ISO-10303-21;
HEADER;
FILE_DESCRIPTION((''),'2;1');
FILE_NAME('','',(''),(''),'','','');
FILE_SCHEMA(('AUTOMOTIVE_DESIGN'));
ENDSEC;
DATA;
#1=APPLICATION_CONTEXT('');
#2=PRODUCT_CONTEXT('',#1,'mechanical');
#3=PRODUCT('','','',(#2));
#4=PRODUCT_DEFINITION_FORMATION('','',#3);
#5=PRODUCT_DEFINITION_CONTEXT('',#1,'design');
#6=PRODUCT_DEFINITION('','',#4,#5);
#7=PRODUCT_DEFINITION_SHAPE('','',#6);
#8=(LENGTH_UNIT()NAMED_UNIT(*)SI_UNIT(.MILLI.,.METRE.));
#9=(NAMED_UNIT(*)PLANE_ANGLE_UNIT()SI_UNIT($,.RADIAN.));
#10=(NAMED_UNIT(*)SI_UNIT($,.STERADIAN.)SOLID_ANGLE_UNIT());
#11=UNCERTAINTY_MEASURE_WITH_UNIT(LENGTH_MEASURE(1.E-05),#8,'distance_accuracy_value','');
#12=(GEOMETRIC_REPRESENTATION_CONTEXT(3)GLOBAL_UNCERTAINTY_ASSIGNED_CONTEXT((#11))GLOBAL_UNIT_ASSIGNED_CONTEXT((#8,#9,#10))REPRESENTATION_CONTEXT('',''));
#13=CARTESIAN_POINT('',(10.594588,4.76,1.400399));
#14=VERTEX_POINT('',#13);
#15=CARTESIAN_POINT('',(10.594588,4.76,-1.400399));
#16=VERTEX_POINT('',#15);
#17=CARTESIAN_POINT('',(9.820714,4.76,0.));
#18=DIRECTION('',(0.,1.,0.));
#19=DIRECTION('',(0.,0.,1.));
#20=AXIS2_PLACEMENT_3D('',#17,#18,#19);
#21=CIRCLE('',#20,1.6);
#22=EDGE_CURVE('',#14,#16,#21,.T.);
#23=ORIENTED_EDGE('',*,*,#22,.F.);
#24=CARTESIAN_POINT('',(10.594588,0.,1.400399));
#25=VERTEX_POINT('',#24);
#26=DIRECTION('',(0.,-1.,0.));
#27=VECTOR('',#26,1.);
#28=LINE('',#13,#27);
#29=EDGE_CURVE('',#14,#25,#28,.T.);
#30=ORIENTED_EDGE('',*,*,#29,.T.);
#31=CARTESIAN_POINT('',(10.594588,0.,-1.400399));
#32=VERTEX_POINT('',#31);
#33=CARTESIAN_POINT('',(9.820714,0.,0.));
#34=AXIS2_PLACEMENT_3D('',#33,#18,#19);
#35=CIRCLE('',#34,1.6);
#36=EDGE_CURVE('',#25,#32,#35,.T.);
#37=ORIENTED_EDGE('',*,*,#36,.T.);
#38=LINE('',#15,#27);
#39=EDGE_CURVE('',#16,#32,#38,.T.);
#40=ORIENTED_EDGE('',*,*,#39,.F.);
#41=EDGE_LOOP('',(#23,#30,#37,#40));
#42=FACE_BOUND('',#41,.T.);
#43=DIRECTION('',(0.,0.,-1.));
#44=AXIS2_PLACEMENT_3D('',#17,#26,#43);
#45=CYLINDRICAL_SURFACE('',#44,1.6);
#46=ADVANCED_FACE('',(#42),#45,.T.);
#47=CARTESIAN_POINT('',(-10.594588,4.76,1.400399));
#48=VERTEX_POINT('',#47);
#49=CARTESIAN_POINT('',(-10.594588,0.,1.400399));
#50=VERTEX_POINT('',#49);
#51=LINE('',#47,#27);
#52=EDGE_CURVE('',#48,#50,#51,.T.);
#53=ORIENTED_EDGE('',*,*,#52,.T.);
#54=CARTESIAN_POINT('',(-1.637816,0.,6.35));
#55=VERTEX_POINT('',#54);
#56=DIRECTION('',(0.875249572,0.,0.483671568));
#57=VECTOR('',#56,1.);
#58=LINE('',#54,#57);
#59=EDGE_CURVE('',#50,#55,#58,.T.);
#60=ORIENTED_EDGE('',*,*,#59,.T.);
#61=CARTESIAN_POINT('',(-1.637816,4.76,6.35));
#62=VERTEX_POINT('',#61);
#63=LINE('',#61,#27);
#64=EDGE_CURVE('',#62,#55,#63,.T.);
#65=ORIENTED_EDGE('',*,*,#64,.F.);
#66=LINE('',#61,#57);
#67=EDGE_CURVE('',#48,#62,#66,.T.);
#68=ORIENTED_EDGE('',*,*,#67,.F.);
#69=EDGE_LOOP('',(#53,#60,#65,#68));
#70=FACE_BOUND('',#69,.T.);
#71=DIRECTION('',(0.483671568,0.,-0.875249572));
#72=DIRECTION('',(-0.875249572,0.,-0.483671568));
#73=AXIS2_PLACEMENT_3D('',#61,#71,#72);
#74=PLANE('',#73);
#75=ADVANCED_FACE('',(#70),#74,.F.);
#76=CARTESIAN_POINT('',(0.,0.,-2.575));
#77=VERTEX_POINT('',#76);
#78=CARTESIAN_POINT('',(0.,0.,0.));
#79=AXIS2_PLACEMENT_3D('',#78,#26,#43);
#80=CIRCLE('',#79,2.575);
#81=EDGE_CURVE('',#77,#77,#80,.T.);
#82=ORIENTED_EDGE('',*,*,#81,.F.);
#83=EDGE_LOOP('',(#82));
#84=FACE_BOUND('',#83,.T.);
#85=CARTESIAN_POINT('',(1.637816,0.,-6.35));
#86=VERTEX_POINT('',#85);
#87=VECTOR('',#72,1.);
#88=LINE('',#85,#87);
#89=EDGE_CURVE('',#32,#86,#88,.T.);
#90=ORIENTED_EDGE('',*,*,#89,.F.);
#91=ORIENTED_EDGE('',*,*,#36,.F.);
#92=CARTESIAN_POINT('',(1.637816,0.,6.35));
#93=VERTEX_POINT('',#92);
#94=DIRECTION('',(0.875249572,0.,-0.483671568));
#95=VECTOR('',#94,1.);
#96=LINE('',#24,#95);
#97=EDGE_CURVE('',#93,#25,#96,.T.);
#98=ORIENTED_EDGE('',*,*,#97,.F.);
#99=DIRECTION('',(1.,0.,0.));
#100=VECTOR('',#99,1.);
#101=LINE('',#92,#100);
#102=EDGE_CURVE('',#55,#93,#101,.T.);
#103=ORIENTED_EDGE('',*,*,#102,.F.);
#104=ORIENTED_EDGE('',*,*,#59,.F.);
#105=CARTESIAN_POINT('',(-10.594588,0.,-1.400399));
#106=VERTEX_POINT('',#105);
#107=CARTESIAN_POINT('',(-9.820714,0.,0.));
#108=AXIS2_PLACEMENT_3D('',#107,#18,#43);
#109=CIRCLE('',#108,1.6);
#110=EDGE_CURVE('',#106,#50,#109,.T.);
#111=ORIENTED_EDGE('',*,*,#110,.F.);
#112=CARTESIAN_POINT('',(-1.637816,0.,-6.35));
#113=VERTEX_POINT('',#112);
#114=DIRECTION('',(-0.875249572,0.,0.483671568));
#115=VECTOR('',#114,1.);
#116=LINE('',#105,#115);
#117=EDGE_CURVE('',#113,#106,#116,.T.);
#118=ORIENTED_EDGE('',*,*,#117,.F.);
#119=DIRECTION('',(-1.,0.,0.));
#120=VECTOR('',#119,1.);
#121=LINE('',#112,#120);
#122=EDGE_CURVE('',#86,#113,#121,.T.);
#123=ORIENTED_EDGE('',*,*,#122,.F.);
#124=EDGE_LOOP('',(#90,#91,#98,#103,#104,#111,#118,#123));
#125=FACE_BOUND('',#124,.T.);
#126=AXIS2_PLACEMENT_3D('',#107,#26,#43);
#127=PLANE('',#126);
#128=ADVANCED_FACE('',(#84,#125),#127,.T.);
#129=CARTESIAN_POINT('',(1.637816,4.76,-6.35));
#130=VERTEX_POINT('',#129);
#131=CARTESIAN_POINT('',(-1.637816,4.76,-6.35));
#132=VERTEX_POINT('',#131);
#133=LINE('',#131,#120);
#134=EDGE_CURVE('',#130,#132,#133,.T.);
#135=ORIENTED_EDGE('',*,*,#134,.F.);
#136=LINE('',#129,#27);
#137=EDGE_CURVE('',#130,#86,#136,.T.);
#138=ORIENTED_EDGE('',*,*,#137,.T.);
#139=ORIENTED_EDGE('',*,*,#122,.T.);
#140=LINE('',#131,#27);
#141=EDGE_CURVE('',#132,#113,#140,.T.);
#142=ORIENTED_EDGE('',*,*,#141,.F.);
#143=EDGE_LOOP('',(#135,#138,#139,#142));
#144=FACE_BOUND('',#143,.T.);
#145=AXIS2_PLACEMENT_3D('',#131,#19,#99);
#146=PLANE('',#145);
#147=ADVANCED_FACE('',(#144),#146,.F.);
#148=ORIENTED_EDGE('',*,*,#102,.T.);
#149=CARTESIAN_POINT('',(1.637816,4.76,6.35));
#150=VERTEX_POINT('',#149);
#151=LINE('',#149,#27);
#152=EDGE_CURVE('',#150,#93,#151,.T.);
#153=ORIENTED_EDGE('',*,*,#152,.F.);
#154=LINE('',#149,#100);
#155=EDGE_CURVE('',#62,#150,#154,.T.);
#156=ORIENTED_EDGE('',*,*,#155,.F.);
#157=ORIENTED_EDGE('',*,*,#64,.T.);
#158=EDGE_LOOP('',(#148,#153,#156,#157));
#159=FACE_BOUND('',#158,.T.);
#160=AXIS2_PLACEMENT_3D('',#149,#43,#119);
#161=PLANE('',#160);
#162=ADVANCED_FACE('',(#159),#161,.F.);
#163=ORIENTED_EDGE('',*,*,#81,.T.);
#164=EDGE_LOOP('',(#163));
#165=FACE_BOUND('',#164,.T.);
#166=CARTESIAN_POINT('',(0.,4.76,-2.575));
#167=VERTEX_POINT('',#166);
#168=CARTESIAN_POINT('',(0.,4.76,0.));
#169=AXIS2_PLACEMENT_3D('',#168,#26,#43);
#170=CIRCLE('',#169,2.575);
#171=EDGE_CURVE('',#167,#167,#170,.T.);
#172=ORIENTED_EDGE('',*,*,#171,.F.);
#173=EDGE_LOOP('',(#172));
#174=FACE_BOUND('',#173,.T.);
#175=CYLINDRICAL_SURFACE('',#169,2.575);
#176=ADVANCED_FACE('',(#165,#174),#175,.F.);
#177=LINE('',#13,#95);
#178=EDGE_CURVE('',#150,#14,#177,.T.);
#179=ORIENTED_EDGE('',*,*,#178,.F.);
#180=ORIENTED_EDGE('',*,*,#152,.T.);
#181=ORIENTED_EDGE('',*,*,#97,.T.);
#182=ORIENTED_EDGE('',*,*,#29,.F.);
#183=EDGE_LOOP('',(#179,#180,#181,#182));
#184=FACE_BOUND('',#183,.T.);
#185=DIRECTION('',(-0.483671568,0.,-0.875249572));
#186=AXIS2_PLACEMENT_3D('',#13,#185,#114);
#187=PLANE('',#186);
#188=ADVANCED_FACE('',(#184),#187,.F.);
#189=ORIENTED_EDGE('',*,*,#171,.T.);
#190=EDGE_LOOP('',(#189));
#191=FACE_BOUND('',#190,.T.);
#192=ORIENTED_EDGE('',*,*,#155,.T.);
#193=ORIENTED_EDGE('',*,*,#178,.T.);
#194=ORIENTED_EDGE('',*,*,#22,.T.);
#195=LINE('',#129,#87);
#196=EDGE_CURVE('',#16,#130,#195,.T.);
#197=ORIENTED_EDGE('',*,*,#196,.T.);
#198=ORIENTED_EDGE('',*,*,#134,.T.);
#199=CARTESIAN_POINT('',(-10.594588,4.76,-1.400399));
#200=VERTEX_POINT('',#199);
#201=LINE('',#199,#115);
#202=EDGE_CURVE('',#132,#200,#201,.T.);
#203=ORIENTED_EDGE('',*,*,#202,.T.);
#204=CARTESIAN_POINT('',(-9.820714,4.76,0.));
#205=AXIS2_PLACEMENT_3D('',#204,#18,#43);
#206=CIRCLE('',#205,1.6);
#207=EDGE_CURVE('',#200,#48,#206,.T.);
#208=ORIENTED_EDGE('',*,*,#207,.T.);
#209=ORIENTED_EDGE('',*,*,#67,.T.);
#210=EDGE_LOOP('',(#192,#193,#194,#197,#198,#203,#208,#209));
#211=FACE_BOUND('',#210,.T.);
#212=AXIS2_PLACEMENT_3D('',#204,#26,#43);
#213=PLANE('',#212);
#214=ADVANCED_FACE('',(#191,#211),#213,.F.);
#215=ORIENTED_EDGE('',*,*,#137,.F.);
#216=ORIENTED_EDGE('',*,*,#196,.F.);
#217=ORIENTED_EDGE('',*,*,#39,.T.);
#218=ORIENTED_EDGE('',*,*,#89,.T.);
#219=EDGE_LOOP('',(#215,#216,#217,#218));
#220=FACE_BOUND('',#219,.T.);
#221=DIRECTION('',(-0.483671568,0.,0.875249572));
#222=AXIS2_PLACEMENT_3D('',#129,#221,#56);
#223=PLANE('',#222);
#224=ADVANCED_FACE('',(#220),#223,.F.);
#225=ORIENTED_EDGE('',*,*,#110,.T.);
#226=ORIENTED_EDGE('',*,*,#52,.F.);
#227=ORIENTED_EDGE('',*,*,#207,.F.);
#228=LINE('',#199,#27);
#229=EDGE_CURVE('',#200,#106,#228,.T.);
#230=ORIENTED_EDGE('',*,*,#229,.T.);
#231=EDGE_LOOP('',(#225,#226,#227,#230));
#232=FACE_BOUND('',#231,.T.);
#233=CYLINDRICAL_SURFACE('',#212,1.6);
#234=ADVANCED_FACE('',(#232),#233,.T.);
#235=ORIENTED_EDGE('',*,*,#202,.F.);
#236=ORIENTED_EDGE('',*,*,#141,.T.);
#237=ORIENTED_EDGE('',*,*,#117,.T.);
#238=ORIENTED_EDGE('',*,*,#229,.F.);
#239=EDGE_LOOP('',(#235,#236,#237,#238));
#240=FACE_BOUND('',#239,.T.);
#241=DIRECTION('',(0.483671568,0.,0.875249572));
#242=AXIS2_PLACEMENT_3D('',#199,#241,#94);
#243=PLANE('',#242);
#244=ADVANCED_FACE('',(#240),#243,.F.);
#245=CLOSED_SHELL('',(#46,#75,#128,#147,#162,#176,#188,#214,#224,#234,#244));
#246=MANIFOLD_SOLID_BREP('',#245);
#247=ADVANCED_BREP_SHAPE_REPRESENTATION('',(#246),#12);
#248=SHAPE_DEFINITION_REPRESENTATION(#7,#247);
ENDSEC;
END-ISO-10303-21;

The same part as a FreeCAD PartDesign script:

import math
import FreeCAD as App
import Part
import Sketcher
Q = App.Units.Quantity

doc = App.newDocument("Part")
body = doc.addObject("PartDesign::Body", "Body")

# Sketch on XZ plane
sketch1 = body.newObject("Sketcher::SketchObject", "Sketch")
sketch1.AttachmentSupport = (doc.getObject("XZ_Plane"), [""])
sketch1.MapMode = "FlatFace"
sketch1.addGeometry([
    Part.LineSegment(App.Vector(10.6, -1.4, 0), App.Vector(1.6, -6.3, 0)),  # 0
    Part.LineSegment(App.Vector(1.6, -6.3, 0), App.Vector(-1.6, -6.3, 0)),  # 1
    Part.LineSegment(App.Vector(-1.6, -6.3, 0), App.Vector(-10.6, -1.4, 0)),  # 2
    Part.ArcOfCircle(Part.Circle(App.Vector(-9.8, 0, 0), App.Vector(0, 0, 1), 1.6), math.radians(119), math.radians(241)),  # 3
    Part.LineSegment(App.Vector(-10.6, 1.4, 0), App.Vector(-1.6, 6.3, 0)),  # 4
    Part.LineSegment(App.Vector(-1.6, 6.3, 0), App.Vector(1.6, 6.3, 0)),  # 5
    Part.LineSegment(App.Vector(1.6, 6.3, 0), App.Vector(10.6, 1.4, 0)),  # 6
    Part.ArcOfCircle(Part.Circle(App.Vector(9.8, 0, 0), App.Vector(0, 0, 1), 1.6), math.radians(-61), math.radians(61)),  # 7
], False)
sketch1.addConstraint([
    Sketcher.Constraint("Coincident", 0, 2, 1, 1),
    Sketcher.Constraint("Coincident", 1, 2, 2, 1),
    Sketcher.Constraint("Tangent", 2, 2, 3, 2),
    Sketcher.Constraint("Tangent", 3, 1, 4, 1),
    Sketcher.Constraint("Coincident", 4, 2, 5, 1),
    Sketcher.Constraint("Coincident", 5, 2, 6, 1),
    Sketcher.Constraint("Tangent", 6, 2, 7, 2),
    Sketcher.Constraint("Tangent", 7, 1, 0, 1),
    Sketcher.Constraint("Horizontal", 1),
    Sketcher.Constraint("Horizontal", 5),
    Sketcher.Constraint("Equal", 3, 7),
    Sketcher.Constraint("Symmetric", 3, 3, 7, 3, -1, 1),
    Sketcher.Constraint("Symmetric", 0, 2, 4, 2, -1, 1),
    Sketcher.Constraint("Symmetric", 3, 1, 6, 2, -2),
    Sketcher.Constraint("Parallel", 2, 6),
    Sketcher.Constraint("Radius", 3, Q("1.6 mm")),
    Sketcher.Constraint("DistanceY", 1, 2, 4, 2, Q("12.7 mm")),
    Sketcher.Constraint("DistanceY", 2, 2, -1, 1, Q("1.400399 mm")),
    Sketcher.Constraint("DistanceX", 2, 2, 7, 3, Q("20.415302 mm")),
])
pad1 = body.newObject("PartDesign::Pad", "Pad")
pad1.Profile = sketch1
pad1.Length = 4.76
pad1.Reversed = True

# Sketch on XZ plane
sketch2 = body.newObject("Sketcher::SketchObject", "Sketch001")
sketch2.AttachmentSupport = (doc.getObject("XZ_Plane"), [""])
sketch2.MapMode = "FlatFace"
sketch2.addGeometry(Part.Circle(App.Vector(0, 0, 0), App.Vector(0, 0, 1), 2.6), False)
sketch2.addConstraint([
    Sketcher.Constraint("Coincident", 0, 3, -1, 1),
    Sketcher.Constraint("Diameter", 0, Q("5.15 mm")),
])
pocket1 = body.newObject("PartDesign::Pocket", "Pocket")
pocket1.Profile = sketch2
pocket1.Length = 4.76

doc.recompute()
